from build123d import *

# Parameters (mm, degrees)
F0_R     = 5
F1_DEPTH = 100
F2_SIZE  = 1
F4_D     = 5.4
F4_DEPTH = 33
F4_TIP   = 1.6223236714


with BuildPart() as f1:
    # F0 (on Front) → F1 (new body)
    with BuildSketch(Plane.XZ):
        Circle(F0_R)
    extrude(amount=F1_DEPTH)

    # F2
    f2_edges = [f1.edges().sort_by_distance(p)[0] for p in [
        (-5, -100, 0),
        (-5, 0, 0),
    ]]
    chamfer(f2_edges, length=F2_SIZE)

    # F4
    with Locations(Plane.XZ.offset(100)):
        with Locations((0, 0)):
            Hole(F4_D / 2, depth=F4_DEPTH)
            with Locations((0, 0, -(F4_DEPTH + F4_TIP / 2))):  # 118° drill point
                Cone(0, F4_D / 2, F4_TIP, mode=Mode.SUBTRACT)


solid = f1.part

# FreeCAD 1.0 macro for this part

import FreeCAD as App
import Part
import Sketcher
from FreeCAD import Vector
Q = App.Units.Quantity


def edges_at(feature, points):
    """Names of the edges that pass closest to the given points."""
    edges = feature.Shape.Edges
    near = lambda p: min(range(len(edges)), key=lambda i: edges[i].distToShape(Part.Vertex(*p))[0])
    return sorted({f"Edge{near(p) + 1}" for p in points})

doc = App.newDocument("Part")
body = doc.addObject("PartDesign::Body", "Body")

# Sketch on XZ plane
sketch1 = doc.addObject("Sketcher::SketchObject", "Sketch")
body.addObject(sketch1)
sketch1.AttachmentSupport = (doc.XZ_Plane, [""])
sketch1.MapMode = "FlatFace"
sketch1.addGeometry(Part.Circle(Vector(0, 0, 0), Vector(0, 0, 1), 5), False)
sketch1.addConstraint([
    Sketcher.Constraint("Coincident", 0, 3, -1, 1),
    Sketcher.Constraint("Diameter", 0, Q("10 mm")),
])
pad1 = doc.addObject("PartDesign::Pad", "Pad")
body.addObject(pad1)
pad1.Profile = sketch1
pad1.Length = 100
doc.recompute()

chamfer = doc.addObject("PartDesign::Chamfer", "Chamfer")
body.addObject(chamfer)
chamfer.Base = (pad1, edges_at(pad1, [(-5, -100, 0), (-5, 0, 0)]))
chamfer.Size = 1

# Sketch on XZ plane
sketch2 = doc.addObject("Sketcher::SketchObject", "Sketch001")
body.addObject(sketch2)
sketch2.AttachmentSupport = (doc.XZ_Plane, [""])
sketch2.MapMode = "FlatFace"
sketch2.AttachmentOffset = App.Placement(Vector(0, 0, 100), App.Rotation())
sketch2.addGeometry(Part.Circle(Vector(0, 0, 0), Vector(0, 0, 1), 2.7), False)
sketch2.addConstraint([
    Sketcher.Constraint("Coincident", 0, 3, -1, 1),
    Sketcher.Constraint("Diameter", 0, Q("5.4 mm")),
])
doc.recompute()
hole = doc.addObject("PartDesign::Hole", "Hole")
body.addObject(hole)
hole.Profile = sketch2
hole.ThreadType = "None"
hole.Diameter = 5.4
hole.DepthType = "Dimension"
hole.Depth = 33
hole.DrillPoint = "Angled"
hole.DrillPointAngle = 118

doc.recompute()
